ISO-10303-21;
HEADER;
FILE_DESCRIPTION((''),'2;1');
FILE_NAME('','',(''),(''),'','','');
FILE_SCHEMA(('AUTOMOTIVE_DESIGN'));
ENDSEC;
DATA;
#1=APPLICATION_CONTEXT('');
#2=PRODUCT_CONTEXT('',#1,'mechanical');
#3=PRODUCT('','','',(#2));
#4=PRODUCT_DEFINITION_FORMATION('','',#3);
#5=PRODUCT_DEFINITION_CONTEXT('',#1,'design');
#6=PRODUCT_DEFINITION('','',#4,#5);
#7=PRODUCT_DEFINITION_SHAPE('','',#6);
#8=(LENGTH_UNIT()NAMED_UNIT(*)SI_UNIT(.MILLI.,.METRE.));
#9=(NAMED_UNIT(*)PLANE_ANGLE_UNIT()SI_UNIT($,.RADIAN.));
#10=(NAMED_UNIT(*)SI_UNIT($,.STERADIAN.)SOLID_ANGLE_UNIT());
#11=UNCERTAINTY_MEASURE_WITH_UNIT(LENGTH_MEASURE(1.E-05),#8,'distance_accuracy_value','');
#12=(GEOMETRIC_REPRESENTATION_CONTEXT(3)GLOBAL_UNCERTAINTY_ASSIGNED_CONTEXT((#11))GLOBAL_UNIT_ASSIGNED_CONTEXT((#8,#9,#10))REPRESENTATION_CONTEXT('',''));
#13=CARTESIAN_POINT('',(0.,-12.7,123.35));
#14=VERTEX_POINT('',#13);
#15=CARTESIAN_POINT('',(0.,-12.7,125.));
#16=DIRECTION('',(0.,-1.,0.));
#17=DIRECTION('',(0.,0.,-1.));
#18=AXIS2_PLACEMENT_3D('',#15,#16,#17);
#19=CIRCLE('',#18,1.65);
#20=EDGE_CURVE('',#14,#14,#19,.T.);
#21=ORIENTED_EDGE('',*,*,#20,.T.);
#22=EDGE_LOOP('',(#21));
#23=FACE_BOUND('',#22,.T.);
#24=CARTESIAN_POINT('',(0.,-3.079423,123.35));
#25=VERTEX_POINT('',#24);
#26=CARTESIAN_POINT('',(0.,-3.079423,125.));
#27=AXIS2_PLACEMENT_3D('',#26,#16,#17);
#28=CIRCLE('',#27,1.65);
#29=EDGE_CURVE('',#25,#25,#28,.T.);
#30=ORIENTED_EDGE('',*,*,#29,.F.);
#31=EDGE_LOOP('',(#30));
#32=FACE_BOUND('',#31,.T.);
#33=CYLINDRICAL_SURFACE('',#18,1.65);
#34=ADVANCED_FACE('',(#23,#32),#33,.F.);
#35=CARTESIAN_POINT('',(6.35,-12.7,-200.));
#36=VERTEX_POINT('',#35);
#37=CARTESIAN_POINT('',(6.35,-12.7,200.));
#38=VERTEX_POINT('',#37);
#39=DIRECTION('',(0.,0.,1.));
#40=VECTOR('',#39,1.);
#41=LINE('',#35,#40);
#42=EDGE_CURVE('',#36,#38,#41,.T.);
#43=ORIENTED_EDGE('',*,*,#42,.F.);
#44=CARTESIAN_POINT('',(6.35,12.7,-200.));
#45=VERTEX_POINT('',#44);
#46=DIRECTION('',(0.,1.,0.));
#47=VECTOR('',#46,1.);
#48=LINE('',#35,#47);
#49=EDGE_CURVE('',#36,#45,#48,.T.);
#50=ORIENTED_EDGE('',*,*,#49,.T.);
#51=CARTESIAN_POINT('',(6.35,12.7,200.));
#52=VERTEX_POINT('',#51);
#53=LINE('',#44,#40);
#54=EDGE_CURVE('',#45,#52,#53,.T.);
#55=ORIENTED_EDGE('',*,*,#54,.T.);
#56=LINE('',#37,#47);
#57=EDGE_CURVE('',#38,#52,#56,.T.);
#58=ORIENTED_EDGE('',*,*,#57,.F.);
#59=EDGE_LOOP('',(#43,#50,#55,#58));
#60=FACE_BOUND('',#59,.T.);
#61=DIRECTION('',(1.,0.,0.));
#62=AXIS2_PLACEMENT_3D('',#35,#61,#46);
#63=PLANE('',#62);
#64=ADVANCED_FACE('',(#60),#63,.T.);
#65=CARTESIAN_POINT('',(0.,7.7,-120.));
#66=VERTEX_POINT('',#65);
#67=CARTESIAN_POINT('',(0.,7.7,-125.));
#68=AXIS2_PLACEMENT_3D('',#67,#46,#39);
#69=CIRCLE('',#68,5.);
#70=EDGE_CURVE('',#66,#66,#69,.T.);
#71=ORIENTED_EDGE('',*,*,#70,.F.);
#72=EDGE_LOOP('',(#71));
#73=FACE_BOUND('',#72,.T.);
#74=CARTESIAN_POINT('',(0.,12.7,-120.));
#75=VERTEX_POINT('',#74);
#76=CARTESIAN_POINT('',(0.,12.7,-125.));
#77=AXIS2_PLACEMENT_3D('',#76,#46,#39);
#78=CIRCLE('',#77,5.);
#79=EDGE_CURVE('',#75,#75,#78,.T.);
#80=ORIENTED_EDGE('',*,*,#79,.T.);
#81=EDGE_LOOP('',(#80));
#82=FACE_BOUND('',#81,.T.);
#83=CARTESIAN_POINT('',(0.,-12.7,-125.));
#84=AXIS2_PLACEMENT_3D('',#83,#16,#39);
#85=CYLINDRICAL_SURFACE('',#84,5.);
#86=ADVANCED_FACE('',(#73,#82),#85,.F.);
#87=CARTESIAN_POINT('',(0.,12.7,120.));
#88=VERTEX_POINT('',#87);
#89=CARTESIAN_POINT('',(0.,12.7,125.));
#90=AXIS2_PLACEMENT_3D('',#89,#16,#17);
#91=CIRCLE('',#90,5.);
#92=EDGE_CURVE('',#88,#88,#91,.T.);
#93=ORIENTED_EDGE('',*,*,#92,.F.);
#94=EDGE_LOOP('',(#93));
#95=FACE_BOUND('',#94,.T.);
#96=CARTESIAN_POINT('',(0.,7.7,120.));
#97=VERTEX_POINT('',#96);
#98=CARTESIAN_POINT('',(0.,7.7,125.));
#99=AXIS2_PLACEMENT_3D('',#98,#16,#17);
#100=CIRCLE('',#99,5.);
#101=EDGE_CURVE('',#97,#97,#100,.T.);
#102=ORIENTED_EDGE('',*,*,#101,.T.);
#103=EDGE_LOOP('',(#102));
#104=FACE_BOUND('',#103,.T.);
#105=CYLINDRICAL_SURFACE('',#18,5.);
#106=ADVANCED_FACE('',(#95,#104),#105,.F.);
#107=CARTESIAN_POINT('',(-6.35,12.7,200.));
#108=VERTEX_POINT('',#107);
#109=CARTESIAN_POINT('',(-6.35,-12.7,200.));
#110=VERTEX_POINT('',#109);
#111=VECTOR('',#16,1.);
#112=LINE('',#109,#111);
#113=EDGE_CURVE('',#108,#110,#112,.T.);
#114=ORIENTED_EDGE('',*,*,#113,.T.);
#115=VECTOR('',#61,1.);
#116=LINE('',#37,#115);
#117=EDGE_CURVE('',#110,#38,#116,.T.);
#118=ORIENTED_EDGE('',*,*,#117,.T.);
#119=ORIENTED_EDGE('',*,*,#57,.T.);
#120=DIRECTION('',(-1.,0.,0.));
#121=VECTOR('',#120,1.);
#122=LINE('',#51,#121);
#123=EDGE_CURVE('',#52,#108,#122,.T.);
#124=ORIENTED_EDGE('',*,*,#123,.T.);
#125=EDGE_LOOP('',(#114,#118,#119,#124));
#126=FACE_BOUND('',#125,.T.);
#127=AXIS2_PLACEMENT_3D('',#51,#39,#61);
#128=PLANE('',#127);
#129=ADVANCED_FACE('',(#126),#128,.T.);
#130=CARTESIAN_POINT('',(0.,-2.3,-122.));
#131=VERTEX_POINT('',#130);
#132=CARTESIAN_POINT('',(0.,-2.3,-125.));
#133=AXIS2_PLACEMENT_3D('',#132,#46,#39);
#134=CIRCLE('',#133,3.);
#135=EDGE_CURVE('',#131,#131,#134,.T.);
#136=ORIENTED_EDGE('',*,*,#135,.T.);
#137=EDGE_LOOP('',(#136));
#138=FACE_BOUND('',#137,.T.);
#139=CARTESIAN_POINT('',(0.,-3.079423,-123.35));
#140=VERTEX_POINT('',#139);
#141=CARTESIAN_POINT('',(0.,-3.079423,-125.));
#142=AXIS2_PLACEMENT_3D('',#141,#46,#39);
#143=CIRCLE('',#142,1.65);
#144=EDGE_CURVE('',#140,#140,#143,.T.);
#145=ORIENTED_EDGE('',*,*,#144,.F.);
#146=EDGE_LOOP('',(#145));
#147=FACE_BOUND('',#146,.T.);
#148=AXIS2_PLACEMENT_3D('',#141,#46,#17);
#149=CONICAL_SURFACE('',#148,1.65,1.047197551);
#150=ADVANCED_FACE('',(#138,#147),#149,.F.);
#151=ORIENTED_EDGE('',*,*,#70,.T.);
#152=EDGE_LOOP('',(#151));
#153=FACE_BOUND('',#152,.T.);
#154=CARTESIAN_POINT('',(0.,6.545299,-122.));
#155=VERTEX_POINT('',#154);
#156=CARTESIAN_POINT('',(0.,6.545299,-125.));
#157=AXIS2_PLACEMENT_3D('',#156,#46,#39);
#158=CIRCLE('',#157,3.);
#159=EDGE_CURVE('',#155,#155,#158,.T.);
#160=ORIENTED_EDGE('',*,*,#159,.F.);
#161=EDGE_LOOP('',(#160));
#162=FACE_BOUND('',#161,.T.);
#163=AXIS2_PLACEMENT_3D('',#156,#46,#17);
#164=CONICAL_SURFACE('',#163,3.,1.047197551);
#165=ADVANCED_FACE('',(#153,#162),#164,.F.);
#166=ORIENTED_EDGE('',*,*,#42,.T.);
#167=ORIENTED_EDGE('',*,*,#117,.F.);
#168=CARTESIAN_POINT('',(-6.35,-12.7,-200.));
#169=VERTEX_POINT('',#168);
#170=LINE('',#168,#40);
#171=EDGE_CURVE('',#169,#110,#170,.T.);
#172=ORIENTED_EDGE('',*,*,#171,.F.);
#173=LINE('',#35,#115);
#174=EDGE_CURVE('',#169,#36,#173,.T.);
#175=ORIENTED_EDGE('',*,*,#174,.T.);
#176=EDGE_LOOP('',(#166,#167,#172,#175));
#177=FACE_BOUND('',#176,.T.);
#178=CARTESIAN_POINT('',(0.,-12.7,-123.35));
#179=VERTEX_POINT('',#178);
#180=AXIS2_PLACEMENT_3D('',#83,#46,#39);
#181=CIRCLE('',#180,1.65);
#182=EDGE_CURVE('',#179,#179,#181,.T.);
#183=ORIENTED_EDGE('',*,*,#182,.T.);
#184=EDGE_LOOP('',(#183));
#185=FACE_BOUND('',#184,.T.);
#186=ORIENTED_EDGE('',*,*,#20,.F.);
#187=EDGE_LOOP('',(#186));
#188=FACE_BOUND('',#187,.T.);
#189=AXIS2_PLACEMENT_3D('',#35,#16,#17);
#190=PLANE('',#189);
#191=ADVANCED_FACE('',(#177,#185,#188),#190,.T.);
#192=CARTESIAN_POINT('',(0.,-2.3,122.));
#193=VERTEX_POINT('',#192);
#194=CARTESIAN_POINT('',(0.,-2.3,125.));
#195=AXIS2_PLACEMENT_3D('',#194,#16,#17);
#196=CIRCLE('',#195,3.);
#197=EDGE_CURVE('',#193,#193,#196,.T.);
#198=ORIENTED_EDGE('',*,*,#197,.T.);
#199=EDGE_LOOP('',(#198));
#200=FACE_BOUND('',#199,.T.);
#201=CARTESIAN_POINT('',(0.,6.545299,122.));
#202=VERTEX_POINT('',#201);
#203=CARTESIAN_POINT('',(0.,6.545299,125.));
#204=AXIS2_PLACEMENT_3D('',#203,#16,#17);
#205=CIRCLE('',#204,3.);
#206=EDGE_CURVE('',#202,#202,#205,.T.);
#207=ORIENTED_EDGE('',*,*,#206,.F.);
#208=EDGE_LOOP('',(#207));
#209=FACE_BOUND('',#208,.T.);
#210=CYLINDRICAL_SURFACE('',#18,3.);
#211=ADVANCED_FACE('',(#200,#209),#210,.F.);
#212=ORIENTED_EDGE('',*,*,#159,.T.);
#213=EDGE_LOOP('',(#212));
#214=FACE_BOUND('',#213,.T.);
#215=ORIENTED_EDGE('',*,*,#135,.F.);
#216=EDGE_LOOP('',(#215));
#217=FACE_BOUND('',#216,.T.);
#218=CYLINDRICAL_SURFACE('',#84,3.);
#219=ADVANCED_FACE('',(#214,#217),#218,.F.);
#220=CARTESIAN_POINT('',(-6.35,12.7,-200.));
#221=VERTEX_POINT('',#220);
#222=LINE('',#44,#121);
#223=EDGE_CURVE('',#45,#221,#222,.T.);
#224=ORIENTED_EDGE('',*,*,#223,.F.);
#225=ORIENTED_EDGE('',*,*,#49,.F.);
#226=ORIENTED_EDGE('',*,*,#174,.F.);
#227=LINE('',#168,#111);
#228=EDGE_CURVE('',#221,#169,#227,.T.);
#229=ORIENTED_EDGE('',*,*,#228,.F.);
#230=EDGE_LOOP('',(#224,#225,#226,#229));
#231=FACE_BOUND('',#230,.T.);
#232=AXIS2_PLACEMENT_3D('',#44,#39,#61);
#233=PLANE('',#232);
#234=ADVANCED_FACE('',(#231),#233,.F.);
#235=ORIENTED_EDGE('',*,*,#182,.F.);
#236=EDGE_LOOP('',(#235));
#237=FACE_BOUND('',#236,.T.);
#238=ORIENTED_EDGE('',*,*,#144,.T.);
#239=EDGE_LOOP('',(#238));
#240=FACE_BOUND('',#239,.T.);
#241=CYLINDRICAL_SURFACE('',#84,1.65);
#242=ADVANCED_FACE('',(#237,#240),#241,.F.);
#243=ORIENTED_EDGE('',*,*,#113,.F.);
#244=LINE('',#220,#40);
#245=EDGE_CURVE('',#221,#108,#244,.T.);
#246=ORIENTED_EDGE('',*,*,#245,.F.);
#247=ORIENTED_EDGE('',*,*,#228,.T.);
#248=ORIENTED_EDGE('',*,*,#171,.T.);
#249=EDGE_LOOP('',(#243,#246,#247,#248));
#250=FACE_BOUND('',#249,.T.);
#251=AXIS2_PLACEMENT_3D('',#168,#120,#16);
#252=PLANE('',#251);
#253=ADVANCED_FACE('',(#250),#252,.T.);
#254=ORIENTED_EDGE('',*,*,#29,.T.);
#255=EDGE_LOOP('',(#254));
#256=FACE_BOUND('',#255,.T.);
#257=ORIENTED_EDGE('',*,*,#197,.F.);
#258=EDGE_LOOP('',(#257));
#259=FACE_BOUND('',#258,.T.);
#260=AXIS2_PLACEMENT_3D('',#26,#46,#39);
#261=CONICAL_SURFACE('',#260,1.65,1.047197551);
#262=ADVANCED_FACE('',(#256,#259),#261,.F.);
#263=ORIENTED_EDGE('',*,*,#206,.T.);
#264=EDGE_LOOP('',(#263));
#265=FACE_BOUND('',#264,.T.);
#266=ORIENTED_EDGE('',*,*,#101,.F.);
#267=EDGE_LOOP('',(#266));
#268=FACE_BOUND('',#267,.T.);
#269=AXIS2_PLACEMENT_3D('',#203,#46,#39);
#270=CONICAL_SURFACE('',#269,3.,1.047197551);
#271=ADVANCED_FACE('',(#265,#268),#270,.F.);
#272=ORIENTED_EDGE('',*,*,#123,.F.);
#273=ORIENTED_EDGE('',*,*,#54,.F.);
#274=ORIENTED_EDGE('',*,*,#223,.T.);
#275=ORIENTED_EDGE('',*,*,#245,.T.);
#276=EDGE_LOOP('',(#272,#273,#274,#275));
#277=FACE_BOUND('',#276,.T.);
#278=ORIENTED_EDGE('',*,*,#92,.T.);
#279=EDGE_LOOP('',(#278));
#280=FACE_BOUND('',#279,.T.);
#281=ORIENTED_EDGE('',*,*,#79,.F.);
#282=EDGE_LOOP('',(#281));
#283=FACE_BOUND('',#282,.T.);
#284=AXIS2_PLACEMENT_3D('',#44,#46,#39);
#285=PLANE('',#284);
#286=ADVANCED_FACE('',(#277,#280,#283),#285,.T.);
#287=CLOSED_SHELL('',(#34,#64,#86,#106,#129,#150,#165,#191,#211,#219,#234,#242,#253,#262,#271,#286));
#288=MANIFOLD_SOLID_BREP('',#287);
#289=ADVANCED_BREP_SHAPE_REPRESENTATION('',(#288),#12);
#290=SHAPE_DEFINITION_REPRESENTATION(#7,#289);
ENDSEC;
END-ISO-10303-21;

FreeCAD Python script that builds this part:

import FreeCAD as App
import Part
import Sketcher
from FreeCAD import Vector
Q = App.Units.Quantity

doc = App.newDocument("Part")
body = doc.addObject("PartDesign::Body", "Body")

sketch1 = body.newObject("Sketcher::SketchObject", "Sketch")
sketch1.AttachmentSupport = (doc.getObject("XY_Plane"), [""])
sketch1.MapMode = "FlatFace"
sketch1.addGeometry(Part.LineSegment(Vector(-6.35, 12.7, 0), Vector(-6.35, -12.7, 0)), False)
sketch1.addGeometry(Part.LineSegment(Vector(-6.35, -12.7, 0), Vector(6.35, -12.7, 0)), False)
sketch1.addGeometry(Part.LineSegment(Vector(6.35, -12.7, 0), Vector(6.35, 12.7, 0)), False)
sketch1.addGeometry(Part.LineSegment(Vector(6.35, 12.7, 0), Vector(-6.35, 12.7, 0)), False)
sketch1.addConstraint(Sketcher.Constraint("Coincident", 0, 2, 1, 1))
sketch1.addConstraint(Sketcher.Constraint("Coincident", 1, 2, 2, 1))
sketch1.addConstraint(Sketcher.Constraint("Coincident", 2, 2, 3, 1))
sketch1.addConstraint(Sketcher.Constraint("Coincident", 3, 2, 0, 1))
sketch1.addConstraint(Sketcher.Constraint("Vertical", 0))
sketch1.addConstraint(Sketcher.Constraint("Horizontal", 1))
sketch1.addConstraint(Sketcher.Constraint("Vertical", 2))
sketch1.addConstraint(Sketcher.Constraint("Horizontal", 3))
sketch1.addConstraint(Sketcher.Constraint("Symmetric", 0, 2, 2, 2, -1, 1))
sketch1.addConstraint(Sketcher.Constraint("DistanceX", 1, 1, 1, 2, Q("12.7 mm")))
sketch1.addConstraint(Sketcher.Constraint("DistanceY", 0, 2, 0, 1, Q("25.4 mm")))
pad1 = body.newObject("PartDesign::Pad", "Pad")
pad1.Profile = sketch1
pad1.Type = "TwoLengths"
pad1.Length = 200
pad1.Length2 = 200

sketch2 = body.newObject("Sketcher::SketchObject", "Sketch001")
sketch2.AttachmentSupport = (doc.getObject("YZ_Plane"), [""])
sketch2.MapMode = "FlatFace"
sketch2.addGeometry(Part.LineSegment(Vector(12.7, 120, 0), Vector(12.7, 125, 0)), False)
sketch2.addGeometry(Part.LineSegment(Vector(12.7, 125, 0), Vector(-12.7, 125, 0)), False)
sketch2.addGeometry(Part.LineSegment(Vector(-12.7, 125, 0), Vector(-12.7, 123.35, 0)), False)
sketch2.addGeometry(Part.LineSegment(Vector(-12.7, 123.35, 0), Vector(-3.079423, 123.35, 0)), False)
sketch2.addGeometry(Part.LineSegment(Vector(-3.079423, 123.35, 0), Vector(-2.3, 122, 0)), False)
sketch2.addGeometry(Part.LineSegment(Vector(-2.3, 122, 0), Vector(6.545299, 122, 0)), False)
sketch2.addGeometry(Part.LineSegment(Vector(6.545299, 122, 0), Vector(7.7, 120, 0)), False)
sketch2.addGeometry(Part.LineSegment(Vector(7.7, 120, 0), Vector(12.7, 120, 0)), False)
sketch2.addGeometry(Part.LineSegment(Vector(-12.7, 125, 0), Vector(12.7, 125, 0)), True)
sketch2.addConstraint(Sketcher.Constraint("Coincident", 0, 2, 1, 1))
sketch2.addConstraint(Sketcher.Constraint("Coincident", 1, 2, 2, 1))
sketch2.addConstraint(Sketcher.Constraint("Coincident", 2, 2, 3, 1))
sketch2.addConstraint(Sketcher.Constraint("Coincident", 3, 2, 4, 1))
sketch2.addConstraint(Sketcher.Constraint("Coincident", 4, 2, 5, 1))
sketch2.addConstraint(Sketcher.Constraint("Coincident", 5, 2, 6, 1))
sketch2.addConstraint(Sketcher.Constraint("Coincident", 6, 2, 7, 1))
sketch2.addConstraint(Sketcher.Constraint("Coincident", 7, 2, 0, 1))
sketch2.addConstraint(Sketcher.Constraint("Vertical", 0))
sketch2.addConstraint(Sketcher.Constraint("Horizontal", 1))
sketch2.addConstraint(Sketcher.Constraint("Vertical", 2))
sketch2.addConstraint(Sketcher.Constraint("Horizontal", 3))
sketch2.addConstraint(Sketcher.Constraint("Horizontal", 5))
sketch2.addConstraint(Sketcher.Constraint("Horizontal", 7))
sketch2.addConstraint(Sketcher.Constraint("Horizontal", 8))
sketch2.addConstraint(Sketcher.Constraint("Coincident", 8, 1, 1, 2))
sketch2.addConstraint(Sketcher.Constraint("Parallel", 4, 6))
sketch2.addConstraint(Sketcher.Constraint("Vertical", 7, 2, 8, 2))
sketch2.addConstraint(Sketcher.Constraint("Equal", 7, 0))
sketch2.addConstraint(Sketcher.Constraint("DistanceX", 7, 1, 7, 2, Q("5 mm")))
sketch2.addConstraint(Sketcher.Constraint("Angle", 4, Q("-60 deg")))
sketch2.addConstraint(Sketcher.Constraint("DistanceX", 1, 2, 1, 1, Q("25.4 mm")))
sketch2.addConstraint(Sketcher.Constraint("DistanceY", -1, 1, 0, 2, Q("125 mm")))
sketch2.addConstraint(Sketcher.Constraint("DistanceY", -1, 1, 4, 2, Q("122 mm")))
sketch2.addConstraint(Sketcher.Constraint("DistanceX", 4, 2, 0, 2, Q("15 mm")))
sketch2.addConstraint(Sketcher.Constraint("DistanceY", 2, 2, 2, 1, Q("1.65 mm")))
sketch2.addConstraint(Sketcher.Constraint("DistanceX", -1, 1, 0, 2, Q("12.7 mm")))
groove = body.newObject("PartDesign::Groove", "Groove")
groove.Profile = sketch2
groove.ReferenceAxis = (sketch2, ["Axis0"])
groove.Angle = 360
doc.recompute()

mirrored = body.newObject("PartDesign::Mirrored", "Mirrored")
mirrored.Originals = [groove]
mirrored.MirrorPlane = (doc.getObject("XY_Plane"), [""])
body.Tip = mirrored

doc.recompute()
